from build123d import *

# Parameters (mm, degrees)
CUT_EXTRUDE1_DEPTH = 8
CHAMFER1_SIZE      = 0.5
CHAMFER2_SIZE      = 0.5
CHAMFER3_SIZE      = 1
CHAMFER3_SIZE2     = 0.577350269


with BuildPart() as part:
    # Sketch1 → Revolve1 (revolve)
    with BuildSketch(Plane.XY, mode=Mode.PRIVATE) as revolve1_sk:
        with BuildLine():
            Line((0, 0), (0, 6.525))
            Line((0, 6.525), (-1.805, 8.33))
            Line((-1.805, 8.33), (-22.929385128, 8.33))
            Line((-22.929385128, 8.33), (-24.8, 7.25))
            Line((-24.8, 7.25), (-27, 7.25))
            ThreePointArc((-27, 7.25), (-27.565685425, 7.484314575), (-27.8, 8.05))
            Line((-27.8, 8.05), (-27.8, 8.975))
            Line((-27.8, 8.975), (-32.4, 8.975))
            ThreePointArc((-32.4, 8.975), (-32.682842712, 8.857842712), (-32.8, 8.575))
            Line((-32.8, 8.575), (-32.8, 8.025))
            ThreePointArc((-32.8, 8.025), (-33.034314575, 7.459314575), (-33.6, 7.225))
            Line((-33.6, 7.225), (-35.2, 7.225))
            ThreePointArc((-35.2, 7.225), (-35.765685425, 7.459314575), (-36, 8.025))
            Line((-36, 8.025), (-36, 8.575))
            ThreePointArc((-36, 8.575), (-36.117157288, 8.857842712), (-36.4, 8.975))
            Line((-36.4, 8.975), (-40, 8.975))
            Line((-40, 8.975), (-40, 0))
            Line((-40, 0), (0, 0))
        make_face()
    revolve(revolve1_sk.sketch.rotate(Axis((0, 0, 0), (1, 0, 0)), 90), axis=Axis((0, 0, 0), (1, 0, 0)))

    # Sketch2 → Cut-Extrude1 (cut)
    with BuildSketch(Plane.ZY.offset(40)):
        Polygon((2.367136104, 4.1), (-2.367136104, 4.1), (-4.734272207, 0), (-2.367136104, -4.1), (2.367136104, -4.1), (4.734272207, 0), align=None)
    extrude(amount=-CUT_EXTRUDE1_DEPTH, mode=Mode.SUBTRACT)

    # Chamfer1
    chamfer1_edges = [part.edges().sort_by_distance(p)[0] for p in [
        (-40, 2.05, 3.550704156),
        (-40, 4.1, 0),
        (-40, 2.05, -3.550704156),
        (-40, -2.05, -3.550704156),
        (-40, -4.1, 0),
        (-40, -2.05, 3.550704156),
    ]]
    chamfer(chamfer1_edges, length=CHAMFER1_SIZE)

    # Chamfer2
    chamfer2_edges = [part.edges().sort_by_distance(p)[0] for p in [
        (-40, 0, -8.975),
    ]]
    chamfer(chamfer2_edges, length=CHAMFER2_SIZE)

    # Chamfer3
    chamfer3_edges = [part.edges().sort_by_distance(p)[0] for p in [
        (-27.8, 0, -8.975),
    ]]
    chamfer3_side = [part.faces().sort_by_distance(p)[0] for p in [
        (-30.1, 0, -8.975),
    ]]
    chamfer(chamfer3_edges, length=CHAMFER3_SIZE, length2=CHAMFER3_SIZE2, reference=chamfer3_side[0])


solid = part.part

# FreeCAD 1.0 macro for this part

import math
import FreeCAD as App
import Part
import Sketcher

V = App.Vector
Q = App.Units.Quantity


def edges_at(feature, points):
    """Names of the edges that pass closest to the given points."""
    edges = feature.Shape.Edges
    near = lambda p: min(range(len(edges)), key=lambda i: edges[i].distToShape(Part.Vertex(*p))[0])
    return sorted({f"Edge{near(p) + 1}" for p in points})

doc = App.newDocument("Part")
body = doc.addObject("PartDesign::Body", "Body")

# Sketch on XY plane
sketch1 = body.newObject("Sketcher::SketchObject", "Sketch")
sketch1.AttachmentSupport = (doc.getObject("XY_Plane"), [""])
sketch1.MapMode = "FlatFace"
sketch1.addGeometry(Part.LineSegment(V(0, 0, 0), V(0, 6.53, 0)), False)
sketch1.addGeometry(Part.LineSegment(V(0, 6.53, 0), V(-1.8, 8.33, 0)), False)
sketch1.addGeometry(Part.LineSegment(V(-1.8, 8.33, 0), V(-22.93, 8.33, 0)), False)
sketch1.addGeometry(Part.LineSegment(V(-22.93, 8.33, 0), V(-24.8, 7.25, 0)), False)
sketch1.addGeometry(Part.LineSegment(V(-24.8, 7.25, 0), V(-27, 7.25, 0)), False)
sketch1.addGeometry(Part.ArcOfCircle(Part.Circle(V(-27, 8.05, 0), V(0, 0, 1), 0.8), math.radians(180), math.radians(270)), False)
sketch1.addGeometry(Part.LineSegment(V(-27.8, 8.05, 0), V(-27.8, 8.97, 0)), False)
sketch1.addGeometry(Part.LineSegment(V(-27.8, 8.97, 0), V(-32.4, 8.97, 0)), False)
sketch1.addGeometry(Part.ArcOfCircle(Part.Circle(V(-32.4, 8.57, 0), V(0, 0, 1), 0.4), math.radians(90), math.radians(180)), False)
sketch1.addGeometry(Part.LineSegment(V(-32.8, 8.57, 0), V(-32.8, 8.03, 0)), False)
sketch1.addGeometry(Part.ArcOfCircle(Part.Circle(V(-33.6, 8.03, 0), V(0, 0, 1), 0.8), math.radians(-90), math.radians(0)), False)
sketch1.addGeometry(Part.LineSegment(V(-33.6, 7.22, 0), V(-35.2, 7.22, 0)), False)
sketch1.addGeometry(Part.ArcOfCircle(Part.Circle(V(-35.2, 8.03, 0), V(0, 0, 1), 0.8), math.radians(180), math.radians(270)), False)
sketch1.addGeometry(Part.LineSegment(V(-36, 8.03, 0), V(-36, 8.57, 0)), False)
sketch1.addGeometry(Part.ArcOfCircle(Part.Circle(V(-36.4, 8.57, 0), V(0, 0, 1), 0.4), math.radians(0), math.radians(90)), False)
sketch1.addGeometry(Part.LineSegment(V(-36.4, 8.97, 0), V(-40, 8.97, 0)), False)
sketch1.addGeometry(Part.LineSegment(V(-40, 8.97, 0), V(-40, 0, 0)), False)
sketch1.addGeometry(Part.LineSegment(V(-40, 0, 0), V(0, 0, 0)), False)
sketch1.addConstraint(Sketcher.Constraint("Coincident", 0, 2, 1, 1))
sketch1.addConstraint(Sketcher.Constraint("Coincident", 1, 2, 2, 1))
sketch1.addConstraint(Sketcher.Constraint("Coincident", 2, 2, 3, 1))
sketch1.addConstraint(Sketcher.Constraint("Coincident", 3, 2, 4, 1))
sketch1.addConstraint(Sketcher.Constraint("Tangent", 4, 2, 5, 2))
sketch1.addConstraint(Sketcher.Constraint("Tangent", 5, 1, 6, 1))
sketch1.addConstraint(Sketcher.Constraint("Coincident", 6, 2, 7, 1))
sketch1.addConstraint(Sketcher.Constraint("Tangent", 7, 2, 8, 1))
sketch1.addConstraint(Sketcher.Constraint("Tangent", 8, 2, 9, 1))
sketch1.addConstraint(Sketcher.Constraint("Tangent", 9, 2, 10, 2))
sketch1.addConstraint(Sketcher.Constraint("Tangent", 10, 1, 11, 1))
sketch1.addConstraint(Sketcher.Constraint("Tangent", 11, 2, 12, 2))
sketch1.addConstraint(Sketcher.Constraint("Tangent", 12, 1, 13, 1))
sketch1.addConstraint(Sketcher.Constraint("Tangent", 13, 2, 14, 1))
sketch1.addConstraint(Sketcher.Constraint("Tangent", 14, 2, 15, 1))
sketch1.addConstraint(Sketcher.Constraint("Coincident", 15, 2, 16, 1))
sketch1.addConstraint(Sketcher.Constraint("Coincident", 16, 2, 17, 1))
sketch1.addConstraint(Sketcher.Constraint("Coincident", 17, 2, 0, 1))
sketch1.addConstraint(Sketcher.Constraint("Vertical", 0))
sketch1.addConstraint(Sketcher.Constraint("Horizontal", 2))
sketch1.addConstraint(Sketcher.Constraint("Horizontal", 4))
sketch1.addConstraint(Sketcher.Constraint("Vertical", 6))
sketch1.addConstraint(Sketcher.Constraint("Horizontal", 7))
sketch1.addConstraint(Sketcher.Constraint("Vertical", 9))
sketch1.addConstraint(Sketcher.Constraint("Horizontal", 11))
sketch1.addConstraint(Sketcher.Constraint("Vertical", 13))
sketch1.addConstraint(Sketcher.Constraint("Horizontal", 15))
sketch1.addConstraint(Sketcher.Constraint("Vertical", 16))
sketch1.addConstraint(Sketcher.Constraint("Horizontal", 17))
sketch1.addConstraint(Sketcher.Constraint("Coincident", 17, 2, -1, 1))
sketch1.addConstraint(Sketcher.Constraint("Equal", 5, 10))
sketch1.addConstraint(Sketcher.Constraint("Equal", 10, 12))
sketch1.addConstraint(Sketcher.Constraint("Equal", 8, 14))
sketch1.addConstraint(Sketcher.Constraint("Horizontal", 8, 3, 14, 3))
sketch1.addConstraint(Sketcher.Constraint("Radius", 5, 0.8))
sketch1.addConstraint(Sketcher.Constraint("Radius", 8, 0.4))
sketch1.addConstraint(Sketcher.Constraint("DistanceX", 17, 1, 17, 2, 40.0))
sketch1.addConstraint(Sketcher.Constraint("Angle", 1, Q("135 deg")))
sketch1.addConstraint(Sketcher.Constraint("Angle", 3, Q("-150 deg")))
sketch1.addConstraint(Sketcher.Constraint("DistanceX", 4, 2, 4, 1, 2.2))
sketch1.addConstraint(Sketcher.Constraint("DistanceX", 7, 2, 7, 1, 4.6))
sketch1.addConstraint(Sketcher.Constraint("DistanceX", 11, 2, 11, 1, 1.6))
sketch1.addConstraint(Sketcher.Constraint("DistanceX", 15, 2, 15, 1, 3.6))
sketch1.addConstraint(Sketcher.Constraint("DistanceY", 9, 2, 9, 1, 0.55))
sketch1.addConstraint(Sketcher.Constraint("DistanceY", 0, 2, 10, 3, 1.5))
sketch1.addConstraint(Sketcher.Constraint("Distance", 3, 2.16))
sketch1.addConstraint(Sketcher.Constraint("DistanceY", 0, 1, 0, 2, 6.525))
sketch1.addConstraint(Sketcher.Constraint("DistanceY", 6, 1, 6, 2, 0.925))
revolution = body.newObject("PartDesign::Revolution", "Revolution")
revolution.Profile = sketch1
revolution.ReferenceAxis = (sketch1, ["H_Axis"])
revolution.Angle = 360

# Sketch on YZ plane
sketch2 = body.newObject("Sketcher::SketchObject", "Sketch001")
sketch2.AttachmentSupport = (doc.getObject("YZ_Plane"), [""])
sketch2.MapMode = "FlatFace"
sketch2.AttachmentOffset = App.Placement(V(0, 0, -40), App.Rotation())
sketch2.addGeometry(Part.LineSegment(V(4.1, 2.4, 0), V(4.1, -2.4, 0)), False)
sketch2.addGeometry(Part.LineSegment(V(4.1, -2.4, 0), V(0, -4.7, 0)), False)
sketch2.addGeometry(Part.LineSegment(V(0, -4.7, 0), V(-4.1, -2.4, 0)), False)
sketch2.addGeometry(Part.LineSegment(V(-4.1, -2.4, 0), V(-4.1, 2.4, 0)), False)
sketch2.addGeometry(Part.LineSegment(V(-4.1, 2.4, 0), V(0, 4.7, 0)), False)
sketch2.addGeometry(Part.LineSegment(V(0, 4.7, 0), V(4.1, 2.4, 0)), False)
sketch2.addConstraint(Sketcher.Constraint("Coincident", 0, 2, 1, 1))
sketch2.addConstraint(Sketcher.Constraint("Coincident", 1, 2, 2, 1))
sketch2.addConstraint(Sketcher.Constraint("Coincident", 2, 2, 3, 1))
sketch2.addConstraint(Sketcher.Constraint("Coincident", 3, 2, 4, 1))
sketch2.addConstraint(Sketcher.Constraint("Coincident", 4, 2, 5, 1))
sketch2.addConstraint(Sketcher.Constraint("Coincident", 5, 2, 0, 1))
sketch2.addConstraint(Sketcher.Constraint("Vertical", 0))
sketch2.addConstraint(Sketcher.Constraint("Vertical", 3))
sketch2.addConstraint(Sketcher.Constraint("Symmetric", 0, 2, 3, 2, -1, 1))
sketch2.addConstraint(Sketcher.Constraint("Symmetric", 1, 2, 4, 2, -1, 1))
sketch2.addConstraint(Sketcher.Constraint("PointOnObject", 1, 2, -2))
sketch2.addConstraint(Sketcher.Constraint("Parallel", 2, 5))
sketch2.addConstraint(Sketcher.Constraint("Horizontal", 0, 2, 2, 2))
sketch2.addConstraint(Sketcher.Constraint("Angle", 1, Q("-150 deg")))
sketch2.addConstraint(Sketcher.Constraint("DistanceX", -1, 1, 0, 2, 4.1))
sketch2.addConstraint(Sketcher.Constraint("DistanceY", 0, 2, 0, 1, 4.734272))
pocket1 = body.newObject("PartDesign::Pocket", "Pocket")
pocket1.Profile = sketch2
pocket1.Length = 8
pocket1.Reversed = True
doc.recompute()

chamfer = body.newObject("PartDesign::Chamfer", "Chamfer")
chamfer.Base = (pocket1, edges_at(pocket1, [
    (-40, 2.05, 3.551),
    (-40, 4.1, 0),
    (-40, 2.05, -3.551),
    (-40, -2.05, -3.551),
    (-40, -4.1, 0),
    (-40, -2.05, 3.551),
]))
chamfer.Size = 0.5
doc.recompute()

chamfer2 = body.newObject("PartDesign::Chamfer", "Chamfer001")
chamfer2.Base = (chamfer, edges_at(chamfer, [(-40, 0, -8.975)]))
chamfer2.Size = 0.5
doc.recompute()

chamfer3 = body.newObject("PartDesign::Chamfer", "Chamfer002")
chamfer3.Base = (chamfer2, edges_at(chamfer2, [(-27.8, 0, -8.975)]))
chamfer3.ChamferType = "Two distances"
chamfer3.Size = 1
chamfer3.Size2 = 0.57735

doc.recompute()
